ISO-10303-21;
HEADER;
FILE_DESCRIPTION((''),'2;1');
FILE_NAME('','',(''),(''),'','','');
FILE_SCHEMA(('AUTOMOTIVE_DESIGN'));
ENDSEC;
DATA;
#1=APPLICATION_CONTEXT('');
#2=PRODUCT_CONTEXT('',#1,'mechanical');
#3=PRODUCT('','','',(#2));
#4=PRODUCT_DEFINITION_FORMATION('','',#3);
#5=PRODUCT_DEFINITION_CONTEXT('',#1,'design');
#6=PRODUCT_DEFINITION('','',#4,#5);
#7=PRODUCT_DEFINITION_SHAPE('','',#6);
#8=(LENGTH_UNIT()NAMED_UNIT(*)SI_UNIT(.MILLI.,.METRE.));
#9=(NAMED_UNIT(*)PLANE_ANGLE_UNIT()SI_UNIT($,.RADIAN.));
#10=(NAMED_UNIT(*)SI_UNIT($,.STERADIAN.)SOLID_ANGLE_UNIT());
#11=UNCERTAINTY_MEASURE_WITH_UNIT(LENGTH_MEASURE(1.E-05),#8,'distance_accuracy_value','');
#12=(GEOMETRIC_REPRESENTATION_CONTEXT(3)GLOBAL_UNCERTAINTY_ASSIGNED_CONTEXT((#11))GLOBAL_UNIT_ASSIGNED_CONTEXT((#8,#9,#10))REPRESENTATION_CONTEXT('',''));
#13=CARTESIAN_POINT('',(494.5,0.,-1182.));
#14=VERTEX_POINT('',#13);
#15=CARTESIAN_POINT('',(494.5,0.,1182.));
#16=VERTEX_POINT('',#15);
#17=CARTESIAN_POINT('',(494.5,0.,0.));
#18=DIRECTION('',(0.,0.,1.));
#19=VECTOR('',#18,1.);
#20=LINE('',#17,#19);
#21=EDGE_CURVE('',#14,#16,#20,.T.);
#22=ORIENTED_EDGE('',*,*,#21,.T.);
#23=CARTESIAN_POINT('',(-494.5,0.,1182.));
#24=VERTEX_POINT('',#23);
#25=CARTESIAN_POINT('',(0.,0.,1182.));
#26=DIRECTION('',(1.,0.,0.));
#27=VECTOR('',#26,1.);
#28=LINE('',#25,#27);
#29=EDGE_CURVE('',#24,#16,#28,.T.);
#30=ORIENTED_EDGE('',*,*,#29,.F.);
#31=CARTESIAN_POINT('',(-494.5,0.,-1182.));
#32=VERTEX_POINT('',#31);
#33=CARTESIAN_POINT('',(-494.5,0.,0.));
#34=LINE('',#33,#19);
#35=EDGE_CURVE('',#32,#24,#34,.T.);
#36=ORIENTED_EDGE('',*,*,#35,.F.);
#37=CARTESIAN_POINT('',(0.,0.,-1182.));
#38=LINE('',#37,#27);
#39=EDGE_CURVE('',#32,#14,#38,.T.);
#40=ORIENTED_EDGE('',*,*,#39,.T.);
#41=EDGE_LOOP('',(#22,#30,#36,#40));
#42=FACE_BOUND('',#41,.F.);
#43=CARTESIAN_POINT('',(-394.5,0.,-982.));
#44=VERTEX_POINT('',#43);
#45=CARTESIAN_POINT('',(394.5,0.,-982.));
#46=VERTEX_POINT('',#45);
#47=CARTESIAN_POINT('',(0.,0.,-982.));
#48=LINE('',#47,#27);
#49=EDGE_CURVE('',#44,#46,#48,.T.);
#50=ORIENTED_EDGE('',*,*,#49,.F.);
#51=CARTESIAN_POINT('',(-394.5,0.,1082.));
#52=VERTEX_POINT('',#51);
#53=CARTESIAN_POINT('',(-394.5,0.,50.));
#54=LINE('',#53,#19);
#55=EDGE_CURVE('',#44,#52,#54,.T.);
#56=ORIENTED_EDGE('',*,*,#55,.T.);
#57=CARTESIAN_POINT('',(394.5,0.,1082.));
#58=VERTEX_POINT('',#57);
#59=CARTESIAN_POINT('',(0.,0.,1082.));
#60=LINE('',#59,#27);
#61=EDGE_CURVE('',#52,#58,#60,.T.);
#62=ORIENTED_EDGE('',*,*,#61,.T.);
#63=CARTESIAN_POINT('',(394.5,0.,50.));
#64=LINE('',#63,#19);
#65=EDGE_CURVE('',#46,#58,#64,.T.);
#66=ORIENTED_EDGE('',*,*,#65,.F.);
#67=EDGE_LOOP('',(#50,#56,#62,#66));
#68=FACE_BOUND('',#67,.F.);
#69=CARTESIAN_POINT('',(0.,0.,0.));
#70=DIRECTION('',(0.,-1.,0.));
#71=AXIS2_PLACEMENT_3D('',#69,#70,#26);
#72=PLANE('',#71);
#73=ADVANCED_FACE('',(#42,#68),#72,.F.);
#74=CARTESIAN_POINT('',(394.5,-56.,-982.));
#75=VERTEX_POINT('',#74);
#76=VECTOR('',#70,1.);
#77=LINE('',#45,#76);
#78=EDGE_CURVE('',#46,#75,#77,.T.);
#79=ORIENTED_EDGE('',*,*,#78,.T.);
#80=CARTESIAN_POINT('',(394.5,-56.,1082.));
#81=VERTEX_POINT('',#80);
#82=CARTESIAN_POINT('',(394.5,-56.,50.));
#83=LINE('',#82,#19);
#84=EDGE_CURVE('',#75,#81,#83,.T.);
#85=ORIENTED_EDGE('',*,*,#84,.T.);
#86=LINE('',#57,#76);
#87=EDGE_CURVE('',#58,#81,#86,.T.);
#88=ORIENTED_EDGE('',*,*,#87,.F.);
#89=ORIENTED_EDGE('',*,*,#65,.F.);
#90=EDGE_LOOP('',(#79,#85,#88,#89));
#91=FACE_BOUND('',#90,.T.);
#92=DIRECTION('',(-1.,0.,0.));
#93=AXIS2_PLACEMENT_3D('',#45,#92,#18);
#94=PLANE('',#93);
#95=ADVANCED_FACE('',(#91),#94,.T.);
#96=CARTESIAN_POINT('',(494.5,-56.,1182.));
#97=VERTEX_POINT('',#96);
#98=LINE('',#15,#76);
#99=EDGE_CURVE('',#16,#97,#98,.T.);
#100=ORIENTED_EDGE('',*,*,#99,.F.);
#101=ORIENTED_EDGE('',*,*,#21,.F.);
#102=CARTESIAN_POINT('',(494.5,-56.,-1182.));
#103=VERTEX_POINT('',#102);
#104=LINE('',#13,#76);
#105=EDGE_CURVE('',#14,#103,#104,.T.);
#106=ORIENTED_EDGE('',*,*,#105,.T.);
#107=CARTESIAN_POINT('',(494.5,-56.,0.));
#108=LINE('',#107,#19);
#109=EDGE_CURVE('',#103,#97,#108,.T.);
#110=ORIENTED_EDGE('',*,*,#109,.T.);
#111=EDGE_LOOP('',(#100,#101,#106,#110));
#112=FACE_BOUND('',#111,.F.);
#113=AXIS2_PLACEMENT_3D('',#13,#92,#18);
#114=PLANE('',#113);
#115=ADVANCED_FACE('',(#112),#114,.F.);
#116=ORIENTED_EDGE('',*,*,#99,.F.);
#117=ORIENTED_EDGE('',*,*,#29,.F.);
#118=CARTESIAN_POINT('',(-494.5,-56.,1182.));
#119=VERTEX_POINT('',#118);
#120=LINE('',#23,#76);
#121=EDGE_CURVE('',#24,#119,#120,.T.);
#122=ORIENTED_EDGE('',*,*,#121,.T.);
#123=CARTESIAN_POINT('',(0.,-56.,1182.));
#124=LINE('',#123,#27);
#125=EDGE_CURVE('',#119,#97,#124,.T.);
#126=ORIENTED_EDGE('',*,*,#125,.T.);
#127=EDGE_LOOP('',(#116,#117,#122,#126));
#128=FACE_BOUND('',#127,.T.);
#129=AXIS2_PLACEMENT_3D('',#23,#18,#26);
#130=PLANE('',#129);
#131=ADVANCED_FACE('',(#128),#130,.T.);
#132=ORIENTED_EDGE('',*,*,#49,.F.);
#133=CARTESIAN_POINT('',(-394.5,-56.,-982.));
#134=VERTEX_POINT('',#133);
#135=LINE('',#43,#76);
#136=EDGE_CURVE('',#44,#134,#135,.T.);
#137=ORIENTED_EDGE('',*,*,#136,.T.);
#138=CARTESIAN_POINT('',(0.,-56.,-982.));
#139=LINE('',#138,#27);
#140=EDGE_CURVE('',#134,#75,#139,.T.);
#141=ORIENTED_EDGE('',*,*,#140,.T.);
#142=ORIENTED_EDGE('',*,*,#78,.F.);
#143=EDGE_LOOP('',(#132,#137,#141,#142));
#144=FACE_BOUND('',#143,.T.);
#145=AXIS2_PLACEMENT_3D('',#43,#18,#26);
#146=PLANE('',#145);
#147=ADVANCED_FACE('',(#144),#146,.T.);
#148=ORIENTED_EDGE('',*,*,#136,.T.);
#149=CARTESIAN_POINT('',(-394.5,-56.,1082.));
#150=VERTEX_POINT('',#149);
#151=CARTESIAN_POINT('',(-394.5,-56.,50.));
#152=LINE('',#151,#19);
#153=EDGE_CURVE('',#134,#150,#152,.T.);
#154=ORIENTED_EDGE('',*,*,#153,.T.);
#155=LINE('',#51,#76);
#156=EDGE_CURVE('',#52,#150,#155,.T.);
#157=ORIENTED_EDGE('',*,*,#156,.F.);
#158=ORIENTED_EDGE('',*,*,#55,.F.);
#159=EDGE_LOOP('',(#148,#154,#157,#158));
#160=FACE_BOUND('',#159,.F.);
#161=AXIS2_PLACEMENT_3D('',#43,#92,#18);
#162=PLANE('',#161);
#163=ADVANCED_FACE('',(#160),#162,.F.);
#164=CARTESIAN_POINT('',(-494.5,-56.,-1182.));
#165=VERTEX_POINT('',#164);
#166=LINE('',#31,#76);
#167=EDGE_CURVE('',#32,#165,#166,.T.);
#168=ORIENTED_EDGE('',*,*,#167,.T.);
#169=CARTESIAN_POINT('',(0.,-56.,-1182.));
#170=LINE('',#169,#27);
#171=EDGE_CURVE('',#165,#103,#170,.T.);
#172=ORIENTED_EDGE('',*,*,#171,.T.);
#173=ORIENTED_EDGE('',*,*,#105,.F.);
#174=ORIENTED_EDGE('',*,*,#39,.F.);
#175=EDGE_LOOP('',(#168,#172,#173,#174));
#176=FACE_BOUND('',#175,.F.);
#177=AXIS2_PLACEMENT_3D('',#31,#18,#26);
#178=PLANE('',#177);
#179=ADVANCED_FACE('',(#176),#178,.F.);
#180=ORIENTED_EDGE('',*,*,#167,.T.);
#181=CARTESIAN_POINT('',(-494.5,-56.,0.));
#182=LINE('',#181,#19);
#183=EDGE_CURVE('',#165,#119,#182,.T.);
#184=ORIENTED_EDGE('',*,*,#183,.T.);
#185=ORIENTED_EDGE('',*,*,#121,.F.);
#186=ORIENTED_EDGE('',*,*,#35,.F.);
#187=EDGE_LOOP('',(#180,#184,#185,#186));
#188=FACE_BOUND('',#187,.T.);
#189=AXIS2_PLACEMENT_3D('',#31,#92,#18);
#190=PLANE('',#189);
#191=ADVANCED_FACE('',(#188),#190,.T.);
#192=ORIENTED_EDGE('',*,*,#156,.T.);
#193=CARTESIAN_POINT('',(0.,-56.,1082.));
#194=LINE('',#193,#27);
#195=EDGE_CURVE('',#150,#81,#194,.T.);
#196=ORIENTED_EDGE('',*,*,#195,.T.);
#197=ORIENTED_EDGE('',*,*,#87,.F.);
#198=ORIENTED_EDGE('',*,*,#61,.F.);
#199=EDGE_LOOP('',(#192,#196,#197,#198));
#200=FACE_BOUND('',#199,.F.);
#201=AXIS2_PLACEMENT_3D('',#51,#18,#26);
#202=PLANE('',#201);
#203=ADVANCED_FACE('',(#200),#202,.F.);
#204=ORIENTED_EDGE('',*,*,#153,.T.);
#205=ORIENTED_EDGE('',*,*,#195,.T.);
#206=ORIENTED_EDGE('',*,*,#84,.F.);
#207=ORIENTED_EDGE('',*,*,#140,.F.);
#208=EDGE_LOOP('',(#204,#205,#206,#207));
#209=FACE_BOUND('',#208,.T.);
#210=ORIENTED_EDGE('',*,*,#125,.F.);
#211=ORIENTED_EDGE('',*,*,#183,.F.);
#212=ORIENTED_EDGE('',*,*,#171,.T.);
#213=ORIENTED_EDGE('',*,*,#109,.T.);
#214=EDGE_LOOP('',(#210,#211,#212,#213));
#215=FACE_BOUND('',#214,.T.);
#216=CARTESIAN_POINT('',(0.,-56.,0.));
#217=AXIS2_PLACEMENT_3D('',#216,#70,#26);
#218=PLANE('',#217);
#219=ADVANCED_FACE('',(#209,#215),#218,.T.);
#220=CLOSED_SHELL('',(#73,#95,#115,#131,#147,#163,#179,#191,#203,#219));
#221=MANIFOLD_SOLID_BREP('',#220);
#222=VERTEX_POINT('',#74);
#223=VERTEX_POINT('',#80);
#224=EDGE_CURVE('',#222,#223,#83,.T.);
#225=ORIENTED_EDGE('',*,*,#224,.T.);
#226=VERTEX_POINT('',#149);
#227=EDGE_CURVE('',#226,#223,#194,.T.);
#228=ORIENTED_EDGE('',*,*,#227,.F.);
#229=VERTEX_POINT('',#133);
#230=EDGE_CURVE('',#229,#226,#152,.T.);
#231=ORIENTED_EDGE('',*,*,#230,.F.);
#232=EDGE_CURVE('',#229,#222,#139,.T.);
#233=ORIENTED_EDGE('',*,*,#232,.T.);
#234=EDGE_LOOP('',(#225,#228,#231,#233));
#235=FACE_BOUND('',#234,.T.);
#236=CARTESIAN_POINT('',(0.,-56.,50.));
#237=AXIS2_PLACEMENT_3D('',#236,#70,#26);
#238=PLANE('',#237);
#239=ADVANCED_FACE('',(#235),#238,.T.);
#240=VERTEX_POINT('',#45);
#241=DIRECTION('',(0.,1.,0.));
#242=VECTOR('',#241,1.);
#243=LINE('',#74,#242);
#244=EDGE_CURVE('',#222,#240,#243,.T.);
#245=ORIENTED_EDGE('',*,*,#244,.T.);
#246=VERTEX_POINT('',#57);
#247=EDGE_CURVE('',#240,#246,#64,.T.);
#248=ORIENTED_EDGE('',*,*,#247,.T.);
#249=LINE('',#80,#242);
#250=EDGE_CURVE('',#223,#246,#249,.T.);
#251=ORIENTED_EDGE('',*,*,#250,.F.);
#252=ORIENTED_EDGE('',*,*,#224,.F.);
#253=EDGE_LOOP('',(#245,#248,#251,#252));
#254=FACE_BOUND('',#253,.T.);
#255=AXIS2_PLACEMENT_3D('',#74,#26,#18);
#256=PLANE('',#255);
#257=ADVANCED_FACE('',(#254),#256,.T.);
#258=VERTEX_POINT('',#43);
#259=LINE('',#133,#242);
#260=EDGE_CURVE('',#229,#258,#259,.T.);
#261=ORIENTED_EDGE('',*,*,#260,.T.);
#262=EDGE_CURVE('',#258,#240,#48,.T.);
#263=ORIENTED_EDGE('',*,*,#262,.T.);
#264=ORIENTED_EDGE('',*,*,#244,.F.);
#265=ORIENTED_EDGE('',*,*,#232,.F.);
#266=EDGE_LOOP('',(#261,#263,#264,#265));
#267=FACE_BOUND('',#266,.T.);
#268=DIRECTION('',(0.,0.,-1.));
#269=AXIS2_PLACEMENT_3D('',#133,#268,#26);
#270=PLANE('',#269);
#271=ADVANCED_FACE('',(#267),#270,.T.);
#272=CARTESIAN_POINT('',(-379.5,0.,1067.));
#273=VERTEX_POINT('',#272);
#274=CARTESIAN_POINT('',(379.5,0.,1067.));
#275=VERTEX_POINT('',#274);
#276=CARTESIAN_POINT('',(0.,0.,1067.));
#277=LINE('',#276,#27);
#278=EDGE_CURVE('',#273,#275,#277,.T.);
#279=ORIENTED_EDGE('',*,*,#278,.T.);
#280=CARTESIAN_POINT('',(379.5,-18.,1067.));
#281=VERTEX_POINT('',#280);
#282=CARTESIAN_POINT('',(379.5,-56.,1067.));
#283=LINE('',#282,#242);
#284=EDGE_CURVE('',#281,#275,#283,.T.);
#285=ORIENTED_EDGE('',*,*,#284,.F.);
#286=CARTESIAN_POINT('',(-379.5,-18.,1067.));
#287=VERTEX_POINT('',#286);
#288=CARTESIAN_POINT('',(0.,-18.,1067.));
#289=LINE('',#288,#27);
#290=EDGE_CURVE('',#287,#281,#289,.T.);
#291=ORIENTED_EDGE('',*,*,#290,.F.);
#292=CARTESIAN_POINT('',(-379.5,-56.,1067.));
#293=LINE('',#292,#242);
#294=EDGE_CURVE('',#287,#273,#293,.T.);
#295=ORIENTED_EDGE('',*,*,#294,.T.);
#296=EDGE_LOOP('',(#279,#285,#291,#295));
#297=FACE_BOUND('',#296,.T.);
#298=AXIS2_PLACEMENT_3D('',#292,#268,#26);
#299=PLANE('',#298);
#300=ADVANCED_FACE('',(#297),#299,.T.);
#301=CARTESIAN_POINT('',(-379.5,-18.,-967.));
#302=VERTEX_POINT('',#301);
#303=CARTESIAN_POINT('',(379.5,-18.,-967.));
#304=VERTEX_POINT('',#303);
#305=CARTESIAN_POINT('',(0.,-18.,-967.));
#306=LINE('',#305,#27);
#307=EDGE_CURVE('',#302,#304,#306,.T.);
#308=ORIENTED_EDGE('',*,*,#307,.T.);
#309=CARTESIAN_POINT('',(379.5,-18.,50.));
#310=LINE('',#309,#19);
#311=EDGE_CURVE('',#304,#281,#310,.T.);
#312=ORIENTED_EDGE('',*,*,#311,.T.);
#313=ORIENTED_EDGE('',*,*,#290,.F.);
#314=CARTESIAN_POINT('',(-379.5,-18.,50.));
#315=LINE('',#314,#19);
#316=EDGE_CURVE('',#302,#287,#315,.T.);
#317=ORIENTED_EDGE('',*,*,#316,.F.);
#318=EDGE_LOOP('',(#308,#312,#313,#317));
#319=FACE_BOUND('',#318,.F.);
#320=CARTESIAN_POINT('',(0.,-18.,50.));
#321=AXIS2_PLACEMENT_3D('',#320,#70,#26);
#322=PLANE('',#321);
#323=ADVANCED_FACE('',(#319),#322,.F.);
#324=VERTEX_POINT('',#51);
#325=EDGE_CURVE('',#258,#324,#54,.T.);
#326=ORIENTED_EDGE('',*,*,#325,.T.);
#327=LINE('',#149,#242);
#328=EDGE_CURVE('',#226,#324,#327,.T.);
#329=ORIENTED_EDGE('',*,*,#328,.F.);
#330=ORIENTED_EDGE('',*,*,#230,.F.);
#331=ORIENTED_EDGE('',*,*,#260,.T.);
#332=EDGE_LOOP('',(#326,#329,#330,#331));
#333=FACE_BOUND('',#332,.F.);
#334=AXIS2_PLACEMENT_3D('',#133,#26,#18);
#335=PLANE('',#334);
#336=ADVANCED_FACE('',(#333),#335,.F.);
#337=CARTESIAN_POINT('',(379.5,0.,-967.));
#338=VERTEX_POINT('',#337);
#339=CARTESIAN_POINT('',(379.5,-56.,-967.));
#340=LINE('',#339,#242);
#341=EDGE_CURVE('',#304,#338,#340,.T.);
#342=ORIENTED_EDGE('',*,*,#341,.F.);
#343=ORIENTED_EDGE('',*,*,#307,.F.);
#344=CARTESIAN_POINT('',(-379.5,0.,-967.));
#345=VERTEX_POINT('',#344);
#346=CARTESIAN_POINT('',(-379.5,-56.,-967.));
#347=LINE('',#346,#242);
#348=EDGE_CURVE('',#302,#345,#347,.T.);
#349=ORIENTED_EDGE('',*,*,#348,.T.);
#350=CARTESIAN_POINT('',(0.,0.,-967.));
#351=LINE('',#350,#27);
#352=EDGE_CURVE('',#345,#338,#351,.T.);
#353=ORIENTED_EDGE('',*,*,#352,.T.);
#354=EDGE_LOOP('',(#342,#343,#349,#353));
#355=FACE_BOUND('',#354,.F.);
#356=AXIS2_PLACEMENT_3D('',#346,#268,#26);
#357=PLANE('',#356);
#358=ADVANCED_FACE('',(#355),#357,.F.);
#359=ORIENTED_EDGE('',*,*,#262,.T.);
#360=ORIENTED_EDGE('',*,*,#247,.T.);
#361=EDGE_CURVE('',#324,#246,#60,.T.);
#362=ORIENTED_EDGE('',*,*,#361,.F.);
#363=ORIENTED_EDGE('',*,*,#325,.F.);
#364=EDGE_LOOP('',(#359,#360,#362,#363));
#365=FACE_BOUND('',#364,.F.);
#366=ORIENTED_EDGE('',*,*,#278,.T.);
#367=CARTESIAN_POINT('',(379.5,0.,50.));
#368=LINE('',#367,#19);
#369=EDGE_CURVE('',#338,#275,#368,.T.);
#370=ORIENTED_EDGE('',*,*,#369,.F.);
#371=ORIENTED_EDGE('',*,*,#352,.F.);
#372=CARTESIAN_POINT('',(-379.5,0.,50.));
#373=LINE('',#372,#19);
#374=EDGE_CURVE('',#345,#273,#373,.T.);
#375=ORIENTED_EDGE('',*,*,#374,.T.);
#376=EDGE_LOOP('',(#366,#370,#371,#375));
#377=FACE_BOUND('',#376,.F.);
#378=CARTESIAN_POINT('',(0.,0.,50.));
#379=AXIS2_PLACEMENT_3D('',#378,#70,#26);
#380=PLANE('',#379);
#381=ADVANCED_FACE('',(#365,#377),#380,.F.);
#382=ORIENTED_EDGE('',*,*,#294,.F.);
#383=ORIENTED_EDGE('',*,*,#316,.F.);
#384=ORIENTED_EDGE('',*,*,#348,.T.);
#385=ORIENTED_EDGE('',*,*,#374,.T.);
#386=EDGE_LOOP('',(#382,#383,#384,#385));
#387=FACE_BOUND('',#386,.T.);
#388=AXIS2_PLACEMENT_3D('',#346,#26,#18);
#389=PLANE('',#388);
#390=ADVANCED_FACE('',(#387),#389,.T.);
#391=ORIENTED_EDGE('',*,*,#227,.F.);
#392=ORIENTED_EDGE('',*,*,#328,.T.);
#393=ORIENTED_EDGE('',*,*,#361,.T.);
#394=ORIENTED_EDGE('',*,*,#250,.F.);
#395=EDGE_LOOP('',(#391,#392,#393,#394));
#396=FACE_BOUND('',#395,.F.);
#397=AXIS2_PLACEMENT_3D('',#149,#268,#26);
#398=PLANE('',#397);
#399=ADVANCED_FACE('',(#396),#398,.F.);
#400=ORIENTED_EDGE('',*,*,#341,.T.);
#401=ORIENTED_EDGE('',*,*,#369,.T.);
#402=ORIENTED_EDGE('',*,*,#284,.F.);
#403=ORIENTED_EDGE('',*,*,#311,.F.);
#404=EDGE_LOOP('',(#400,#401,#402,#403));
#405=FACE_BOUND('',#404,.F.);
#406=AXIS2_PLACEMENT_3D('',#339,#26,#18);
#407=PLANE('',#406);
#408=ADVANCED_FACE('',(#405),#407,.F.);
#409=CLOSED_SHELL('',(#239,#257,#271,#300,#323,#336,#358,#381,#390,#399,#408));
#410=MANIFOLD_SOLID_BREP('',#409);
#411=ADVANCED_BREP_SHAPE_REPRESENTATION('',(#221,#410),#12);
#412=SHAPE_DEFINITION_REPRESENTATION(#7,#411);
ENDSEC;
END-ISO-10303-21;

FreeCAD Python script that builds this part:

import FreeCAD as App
import Part
import Sketcher
Q = App.Units.Quantity

doc = App.newDocument("Part")
body = doc.addObject("PartDesign::Body", "Body")

# Sketch on XZ plane
sketch1 = doc.addObject("Sketcher::SketchObject", "Sketch")
body.addObject(sketch1)
sketch1.AttachmentSupport = (doc.XZ_Plane, [""])
sketch1.MapMode = "FlatFace"
sketch1.addGeometry(Part.LineSegment(App.Vector(-494, 1182, 0), App.Vector(-494, -1182, 0)), False)
sketch1.addGeometry(Part.LineSegment(App.Vector(-494, -1182, 0), App.Vector(494, -1182, 0)), False)
sketch1.addGeometry(Part.LineSegment(App.Vector(494, -1182, 0), App.Vector(494, 1182, 0)), False)
sketch1.addGeometry(Part.LineSegment(App.Vector(494, 1182, 0), App.Vector(-494, 1182, 0)), False)
sketch1.addGeometry(Part.LineSegment(App.Vector(394, -982, 0), App.Vector(-394, -982, 0)), False)
sketch1.addGeometry(Part.LineSegment(App.Vector(-394, -982, 0), App.Vector(-394, 1082, 0)), False)
sketch1.addGeometry(Part.LineSegment(App.Vector(-394, 1082, 0), App.Vector(394, 1082, 0)), False)
sketch1.addGeometry(Part.LineSegment(App.Vector(394, 1082, 0), App.Vector(394, -982, 0)), False)
sketch1.addConstraint(Sketcher.Constraint("Coincident", 0, 2, 1, 1))
sketch1.addConstraint(Sketcher.Constraint("Coincident", 1, 2, 2, 1))
sketch1.addConstraint(Sketcher.Constraint("Coincident", 2, 2, 3, 1))
sketch1.addConstraint(Sketcher.Constraint("Coincident", 3, 2, 0, 1))
sketch1.addConstraint(Sketcher.Constraint("Coincident", 4, 2, 5, 1))
sketch1.addConstraint(Sketcher.Constraint("Coincident", 5, 2, 6, 1))
sketch1.addConstraint(Sketcher.Constraint("Coincident", 6, 2, 7, 1))
sketch1.addConstraint(Sketcher.Constraint("Coincident", 7, 2, 4, 1))
sketch1.addConstraint(Sketcher.Constraint("Vertical", 0))
sketch1.addConstraint(Sketcher.Constraint("Horizontal", 1))
sketch1.addConstraint(Sketcher.Constraint("Vertical", 2))
sketch1.addConstraint(Sketcher.Constraint("Horizontal", 3))
sketch1.addConstraint(Sketcher.Constraint("Horizontal", 4))
sketch1.addConstraint(Sketcher.Constraint("Vertical", 5))
sketch1.addConstraint(Sketcher.Constraint("Horizontal", 6))
sketch1.addConstraint(Sketcher.Constraint("Vertical", 7))
sketch1.addConstraint(Sketcher.Constraint("Symmetric", 0, 2, 2, 2, -1, 1))
sketch1.addConstraint(Sketcher.Constraint("DistanceX", 1, 1, 1, 2, Q("989 mm")))
sketch1.addConstraint(Sketcher.Constraint("DistanceX", 4, 2, 4, 1, Q("789 mm")))
sketch1.addConstraint(Sketcher.Constraint("DistanceY", 0, 2, 0, 1, Q("2364 mm")))
sketch1.addConstraint(Sketcher.Constraint("DistanceY", 5, 1, 5, 2, Q("2064 mm")))
sketch1.addConstraint(Sketcher.Constraint("DistanceY", 4, 2, -1, 1, Q("982 mm")))
sketch1.addConstraint(Sketcher.Constraint("DistanceX", 0, 2, 4, 2, Q("100 mm")))
pad1 = doc.addObject("PartDesign::Pad", "Pad")
body.addObject(pad1)
pad1.Profile = sketch1
pad1.Length = 56
body2 = doc.addObject("PartDesign::Body", "Body001")

# Sketch on XZ plane
sketch2 = doc.addObject("Sketcher::SketchObject", "Sketch001")
body2.addObject(sketch2)
sketch2.AttachmentSupport = (doc.getObject("XZ_Plane001"), [""])
sketch2.MapMode = "FlatFace"
sketch2.AttachmentOffset = App.Placement(App.Vector(0, 0, 56), App.Rotation())
sketch2.addGeometry(Part.LineSegment(App.Vector(-394, 1082, 0), App.Vector(-394, -982, 0)), False)
sketch2.addGeometry(Part.LineSegment(App.Vector(-394, -982, 0), App.Vector(394, -982, 0)), False)
sketch2.addGeometry(Part.LineSegment(App.Vector(394, -982, 0), App.Vector(394, 1082, 0)), False)
sketch2.addGeometry(Part.LineSegment(App.Vector(394, 1082, 0), App.Vector(-394, 1082, 0)), False)
sketch2.addGeometry(Part.LineSegment(App.Vector(380, -967, 0), App.Vector(-380, -967, 0)), False)
sketch2.addGeometry(Part.LineSegment(App.Vector(-380, -967, 0), App.Vector(-380, 1067, 0)), False)
sketch2.addGeometry(Part.LineSegment(App.Vector(-380, 1067, 0), App.Vector(380, 1067, 0)), False)
sketch2.addGeometry(Part.LineSegment(App.Vector(380, 1067, 0), App.Vector(380, -967, 0)), False)
sketch2.addConstraint(Sketcher.Constraint("Coincident", 0, 2, 1, 1))
sketch2.addConstraint(Sketcher.Constraint("Coincident", 1, 2, 2, 1))
sketch2.addConstraint(Sketcher.Constraint("Coincident", 2, 2, 3, 1))
sketch2.addConstraint(Sketcher.Constraint("Coincident", 3, 2, 0, 1))
sketch2.addConstraint(Sketcher.Constraint("Coincident", 4, 2, 5, 1))
sketch2.addConstraint(Sketcher.Constraint("Coincident", 5, 2, 6, 1))
sketch2.addConstraint(Sketcher.Constraint("Coincident", 6, 2, 7, 1))
sketch2.addConstraint(Sketcher.Constraint("Coincident", 7, 2, 4, 1))
sketch2.addConstraint(Sketcher.Constraint("Vertical", 0))
sketch2.addConstraint(Sketcher.Constraint("Horizontal", 1))
sketch2.addConstraint(Sketcher.Constraint("Vertical", 2))
sketch2.addConstraint(Sketcher.Constraint("Horizontal", 3))
sketch2.addConstraint(Sketcher.Constraint("Horizontal", 4))
sketch2.addConstraint(Sketcher.Constraint("Vertical", 5))
sketch2.addConstraint(Sketcher.Constraint("Horizontal", 6))
sketch2.addConstraint(Sketcher.Constraint("Vertical", 7))
sketch2.addConstraint(Sketcher.Constraint("DistanceX", 1, 1, 1, 2, Q("789 mm")))
sketch2.addConstraint(Sketcher.Constraint("DistanceX", 4, 2, 4, 1, Q("759 mm")))
sketch2.addConstraint(Sketcher.Constraint("DistanceY", 0, 2, 0, 1, Q("2064 mm")))
sketch2.addConstraint(Sketcher.Constraint("DistanceY", 5, 1, 5, 2, Q("2034 mm")))
sketch2.addConstraint(Sketcher.Constraint("DistanceY", 0, 2, -1, 1, Q("982 mm")))
sketch2.addConstraint(Sketcher.Constraint("DistanceY", 4, 2, -1, 1, Q("967 mm")))
sketch2.addConstraint(Sketcher.Constraint("DistanceX", 0, 2, 4, 2, Q("15 mm")))
sketch2.addConstraint(Sketcher.Constraint("DistanceX", 0, 2, -1, 1, Q("394.5 mm")))
pad2 = doc.addObject("PartDesign::Pad", "Pad001")
body2.addObject(pad2)
pad2.Profile = sketch2
pad2.Length = 56
pad2.Reversed = True

# Sketch on XZ plane
sketch3 = doc.addObject("Sketcher::SketchObject", "Sketch002")
body2.addObject(sketch3)
sketch3.AttachmentSupport = (doc.getObject("XZ_Plane001"), [""])
sketch3.MapMode = "FlatFace"
sketch3.AttachmentOffset = App.Placement(App.Vector(0, 0, 56), App.Rotation())
sketch3.addGeometry(Part.LineSegment(App.Vector(-380, 1067, 0), App.Vector(-380, -967, 0)), False)
sketch3.addGeometry(Part.LineSegment(App.Vector(-380, -967, 0), App.Vector(380, -967, 0)), False)
sketch3.addGeometry(Part.LineSegment(App.Vector(380, -967, 0), App.Vector(380, 1067, 0)), False)
sketch3.addGeometry(Part.LineSegment(App.Vector(380, 1067, 0), App.Vector(-380, 1067, 0)), False)
sketch3.addConstraint(Sketcher.Constraint("Coincident", 0, 2, 1, 1))
sketch3.addConstraint(Sketcher.Constraint("Coincident", 1, 2, 2, 1))
sketch3.addConstraint(Sketcher.Constraint("Coincident", 2, 2, 3, 1))
sketch3.addConstraint(Sketcher.Constraint("Coincident", 3, 2, 0, 1))
sketch3.addConstraint(Sketcher.Constraint("Vertical", 0))
sketch3.addConstraint(Sketcher.Constraint("Horizontal", 1))
sketch3.addConstraint(Sketcher.Constraint("Vertical", 2))
sketch3.addConstraint(Sketcher.Constraint("Horizontal", 3))
sketch3.addConstraint(Sketcher.Constraint("DistanceX", 1, 1, 1, 2, Q("759 mm")))
sketch3.addConstraint(Sketcher.Constraint("DistanceY", 0, 2, 0, 1, Q("2034 mm")))
sketch3.addConstraint(Sketcher.Constraint("DistanceY", 0, 2, -1, 1, Q("967 mm")))
sketch3.addConstraint(Sketcher.Constraint("DistanceX", 0, 2, -1, 1, Q("379.5 mm")))
pad3 = doc.addObject("PartDesign::Pad", "Pad002")
body2.addObject(pad3)
pad3.Profile = sketch3
pad3.Length = 38
pad3.Reversed = True

doc.recompute()
